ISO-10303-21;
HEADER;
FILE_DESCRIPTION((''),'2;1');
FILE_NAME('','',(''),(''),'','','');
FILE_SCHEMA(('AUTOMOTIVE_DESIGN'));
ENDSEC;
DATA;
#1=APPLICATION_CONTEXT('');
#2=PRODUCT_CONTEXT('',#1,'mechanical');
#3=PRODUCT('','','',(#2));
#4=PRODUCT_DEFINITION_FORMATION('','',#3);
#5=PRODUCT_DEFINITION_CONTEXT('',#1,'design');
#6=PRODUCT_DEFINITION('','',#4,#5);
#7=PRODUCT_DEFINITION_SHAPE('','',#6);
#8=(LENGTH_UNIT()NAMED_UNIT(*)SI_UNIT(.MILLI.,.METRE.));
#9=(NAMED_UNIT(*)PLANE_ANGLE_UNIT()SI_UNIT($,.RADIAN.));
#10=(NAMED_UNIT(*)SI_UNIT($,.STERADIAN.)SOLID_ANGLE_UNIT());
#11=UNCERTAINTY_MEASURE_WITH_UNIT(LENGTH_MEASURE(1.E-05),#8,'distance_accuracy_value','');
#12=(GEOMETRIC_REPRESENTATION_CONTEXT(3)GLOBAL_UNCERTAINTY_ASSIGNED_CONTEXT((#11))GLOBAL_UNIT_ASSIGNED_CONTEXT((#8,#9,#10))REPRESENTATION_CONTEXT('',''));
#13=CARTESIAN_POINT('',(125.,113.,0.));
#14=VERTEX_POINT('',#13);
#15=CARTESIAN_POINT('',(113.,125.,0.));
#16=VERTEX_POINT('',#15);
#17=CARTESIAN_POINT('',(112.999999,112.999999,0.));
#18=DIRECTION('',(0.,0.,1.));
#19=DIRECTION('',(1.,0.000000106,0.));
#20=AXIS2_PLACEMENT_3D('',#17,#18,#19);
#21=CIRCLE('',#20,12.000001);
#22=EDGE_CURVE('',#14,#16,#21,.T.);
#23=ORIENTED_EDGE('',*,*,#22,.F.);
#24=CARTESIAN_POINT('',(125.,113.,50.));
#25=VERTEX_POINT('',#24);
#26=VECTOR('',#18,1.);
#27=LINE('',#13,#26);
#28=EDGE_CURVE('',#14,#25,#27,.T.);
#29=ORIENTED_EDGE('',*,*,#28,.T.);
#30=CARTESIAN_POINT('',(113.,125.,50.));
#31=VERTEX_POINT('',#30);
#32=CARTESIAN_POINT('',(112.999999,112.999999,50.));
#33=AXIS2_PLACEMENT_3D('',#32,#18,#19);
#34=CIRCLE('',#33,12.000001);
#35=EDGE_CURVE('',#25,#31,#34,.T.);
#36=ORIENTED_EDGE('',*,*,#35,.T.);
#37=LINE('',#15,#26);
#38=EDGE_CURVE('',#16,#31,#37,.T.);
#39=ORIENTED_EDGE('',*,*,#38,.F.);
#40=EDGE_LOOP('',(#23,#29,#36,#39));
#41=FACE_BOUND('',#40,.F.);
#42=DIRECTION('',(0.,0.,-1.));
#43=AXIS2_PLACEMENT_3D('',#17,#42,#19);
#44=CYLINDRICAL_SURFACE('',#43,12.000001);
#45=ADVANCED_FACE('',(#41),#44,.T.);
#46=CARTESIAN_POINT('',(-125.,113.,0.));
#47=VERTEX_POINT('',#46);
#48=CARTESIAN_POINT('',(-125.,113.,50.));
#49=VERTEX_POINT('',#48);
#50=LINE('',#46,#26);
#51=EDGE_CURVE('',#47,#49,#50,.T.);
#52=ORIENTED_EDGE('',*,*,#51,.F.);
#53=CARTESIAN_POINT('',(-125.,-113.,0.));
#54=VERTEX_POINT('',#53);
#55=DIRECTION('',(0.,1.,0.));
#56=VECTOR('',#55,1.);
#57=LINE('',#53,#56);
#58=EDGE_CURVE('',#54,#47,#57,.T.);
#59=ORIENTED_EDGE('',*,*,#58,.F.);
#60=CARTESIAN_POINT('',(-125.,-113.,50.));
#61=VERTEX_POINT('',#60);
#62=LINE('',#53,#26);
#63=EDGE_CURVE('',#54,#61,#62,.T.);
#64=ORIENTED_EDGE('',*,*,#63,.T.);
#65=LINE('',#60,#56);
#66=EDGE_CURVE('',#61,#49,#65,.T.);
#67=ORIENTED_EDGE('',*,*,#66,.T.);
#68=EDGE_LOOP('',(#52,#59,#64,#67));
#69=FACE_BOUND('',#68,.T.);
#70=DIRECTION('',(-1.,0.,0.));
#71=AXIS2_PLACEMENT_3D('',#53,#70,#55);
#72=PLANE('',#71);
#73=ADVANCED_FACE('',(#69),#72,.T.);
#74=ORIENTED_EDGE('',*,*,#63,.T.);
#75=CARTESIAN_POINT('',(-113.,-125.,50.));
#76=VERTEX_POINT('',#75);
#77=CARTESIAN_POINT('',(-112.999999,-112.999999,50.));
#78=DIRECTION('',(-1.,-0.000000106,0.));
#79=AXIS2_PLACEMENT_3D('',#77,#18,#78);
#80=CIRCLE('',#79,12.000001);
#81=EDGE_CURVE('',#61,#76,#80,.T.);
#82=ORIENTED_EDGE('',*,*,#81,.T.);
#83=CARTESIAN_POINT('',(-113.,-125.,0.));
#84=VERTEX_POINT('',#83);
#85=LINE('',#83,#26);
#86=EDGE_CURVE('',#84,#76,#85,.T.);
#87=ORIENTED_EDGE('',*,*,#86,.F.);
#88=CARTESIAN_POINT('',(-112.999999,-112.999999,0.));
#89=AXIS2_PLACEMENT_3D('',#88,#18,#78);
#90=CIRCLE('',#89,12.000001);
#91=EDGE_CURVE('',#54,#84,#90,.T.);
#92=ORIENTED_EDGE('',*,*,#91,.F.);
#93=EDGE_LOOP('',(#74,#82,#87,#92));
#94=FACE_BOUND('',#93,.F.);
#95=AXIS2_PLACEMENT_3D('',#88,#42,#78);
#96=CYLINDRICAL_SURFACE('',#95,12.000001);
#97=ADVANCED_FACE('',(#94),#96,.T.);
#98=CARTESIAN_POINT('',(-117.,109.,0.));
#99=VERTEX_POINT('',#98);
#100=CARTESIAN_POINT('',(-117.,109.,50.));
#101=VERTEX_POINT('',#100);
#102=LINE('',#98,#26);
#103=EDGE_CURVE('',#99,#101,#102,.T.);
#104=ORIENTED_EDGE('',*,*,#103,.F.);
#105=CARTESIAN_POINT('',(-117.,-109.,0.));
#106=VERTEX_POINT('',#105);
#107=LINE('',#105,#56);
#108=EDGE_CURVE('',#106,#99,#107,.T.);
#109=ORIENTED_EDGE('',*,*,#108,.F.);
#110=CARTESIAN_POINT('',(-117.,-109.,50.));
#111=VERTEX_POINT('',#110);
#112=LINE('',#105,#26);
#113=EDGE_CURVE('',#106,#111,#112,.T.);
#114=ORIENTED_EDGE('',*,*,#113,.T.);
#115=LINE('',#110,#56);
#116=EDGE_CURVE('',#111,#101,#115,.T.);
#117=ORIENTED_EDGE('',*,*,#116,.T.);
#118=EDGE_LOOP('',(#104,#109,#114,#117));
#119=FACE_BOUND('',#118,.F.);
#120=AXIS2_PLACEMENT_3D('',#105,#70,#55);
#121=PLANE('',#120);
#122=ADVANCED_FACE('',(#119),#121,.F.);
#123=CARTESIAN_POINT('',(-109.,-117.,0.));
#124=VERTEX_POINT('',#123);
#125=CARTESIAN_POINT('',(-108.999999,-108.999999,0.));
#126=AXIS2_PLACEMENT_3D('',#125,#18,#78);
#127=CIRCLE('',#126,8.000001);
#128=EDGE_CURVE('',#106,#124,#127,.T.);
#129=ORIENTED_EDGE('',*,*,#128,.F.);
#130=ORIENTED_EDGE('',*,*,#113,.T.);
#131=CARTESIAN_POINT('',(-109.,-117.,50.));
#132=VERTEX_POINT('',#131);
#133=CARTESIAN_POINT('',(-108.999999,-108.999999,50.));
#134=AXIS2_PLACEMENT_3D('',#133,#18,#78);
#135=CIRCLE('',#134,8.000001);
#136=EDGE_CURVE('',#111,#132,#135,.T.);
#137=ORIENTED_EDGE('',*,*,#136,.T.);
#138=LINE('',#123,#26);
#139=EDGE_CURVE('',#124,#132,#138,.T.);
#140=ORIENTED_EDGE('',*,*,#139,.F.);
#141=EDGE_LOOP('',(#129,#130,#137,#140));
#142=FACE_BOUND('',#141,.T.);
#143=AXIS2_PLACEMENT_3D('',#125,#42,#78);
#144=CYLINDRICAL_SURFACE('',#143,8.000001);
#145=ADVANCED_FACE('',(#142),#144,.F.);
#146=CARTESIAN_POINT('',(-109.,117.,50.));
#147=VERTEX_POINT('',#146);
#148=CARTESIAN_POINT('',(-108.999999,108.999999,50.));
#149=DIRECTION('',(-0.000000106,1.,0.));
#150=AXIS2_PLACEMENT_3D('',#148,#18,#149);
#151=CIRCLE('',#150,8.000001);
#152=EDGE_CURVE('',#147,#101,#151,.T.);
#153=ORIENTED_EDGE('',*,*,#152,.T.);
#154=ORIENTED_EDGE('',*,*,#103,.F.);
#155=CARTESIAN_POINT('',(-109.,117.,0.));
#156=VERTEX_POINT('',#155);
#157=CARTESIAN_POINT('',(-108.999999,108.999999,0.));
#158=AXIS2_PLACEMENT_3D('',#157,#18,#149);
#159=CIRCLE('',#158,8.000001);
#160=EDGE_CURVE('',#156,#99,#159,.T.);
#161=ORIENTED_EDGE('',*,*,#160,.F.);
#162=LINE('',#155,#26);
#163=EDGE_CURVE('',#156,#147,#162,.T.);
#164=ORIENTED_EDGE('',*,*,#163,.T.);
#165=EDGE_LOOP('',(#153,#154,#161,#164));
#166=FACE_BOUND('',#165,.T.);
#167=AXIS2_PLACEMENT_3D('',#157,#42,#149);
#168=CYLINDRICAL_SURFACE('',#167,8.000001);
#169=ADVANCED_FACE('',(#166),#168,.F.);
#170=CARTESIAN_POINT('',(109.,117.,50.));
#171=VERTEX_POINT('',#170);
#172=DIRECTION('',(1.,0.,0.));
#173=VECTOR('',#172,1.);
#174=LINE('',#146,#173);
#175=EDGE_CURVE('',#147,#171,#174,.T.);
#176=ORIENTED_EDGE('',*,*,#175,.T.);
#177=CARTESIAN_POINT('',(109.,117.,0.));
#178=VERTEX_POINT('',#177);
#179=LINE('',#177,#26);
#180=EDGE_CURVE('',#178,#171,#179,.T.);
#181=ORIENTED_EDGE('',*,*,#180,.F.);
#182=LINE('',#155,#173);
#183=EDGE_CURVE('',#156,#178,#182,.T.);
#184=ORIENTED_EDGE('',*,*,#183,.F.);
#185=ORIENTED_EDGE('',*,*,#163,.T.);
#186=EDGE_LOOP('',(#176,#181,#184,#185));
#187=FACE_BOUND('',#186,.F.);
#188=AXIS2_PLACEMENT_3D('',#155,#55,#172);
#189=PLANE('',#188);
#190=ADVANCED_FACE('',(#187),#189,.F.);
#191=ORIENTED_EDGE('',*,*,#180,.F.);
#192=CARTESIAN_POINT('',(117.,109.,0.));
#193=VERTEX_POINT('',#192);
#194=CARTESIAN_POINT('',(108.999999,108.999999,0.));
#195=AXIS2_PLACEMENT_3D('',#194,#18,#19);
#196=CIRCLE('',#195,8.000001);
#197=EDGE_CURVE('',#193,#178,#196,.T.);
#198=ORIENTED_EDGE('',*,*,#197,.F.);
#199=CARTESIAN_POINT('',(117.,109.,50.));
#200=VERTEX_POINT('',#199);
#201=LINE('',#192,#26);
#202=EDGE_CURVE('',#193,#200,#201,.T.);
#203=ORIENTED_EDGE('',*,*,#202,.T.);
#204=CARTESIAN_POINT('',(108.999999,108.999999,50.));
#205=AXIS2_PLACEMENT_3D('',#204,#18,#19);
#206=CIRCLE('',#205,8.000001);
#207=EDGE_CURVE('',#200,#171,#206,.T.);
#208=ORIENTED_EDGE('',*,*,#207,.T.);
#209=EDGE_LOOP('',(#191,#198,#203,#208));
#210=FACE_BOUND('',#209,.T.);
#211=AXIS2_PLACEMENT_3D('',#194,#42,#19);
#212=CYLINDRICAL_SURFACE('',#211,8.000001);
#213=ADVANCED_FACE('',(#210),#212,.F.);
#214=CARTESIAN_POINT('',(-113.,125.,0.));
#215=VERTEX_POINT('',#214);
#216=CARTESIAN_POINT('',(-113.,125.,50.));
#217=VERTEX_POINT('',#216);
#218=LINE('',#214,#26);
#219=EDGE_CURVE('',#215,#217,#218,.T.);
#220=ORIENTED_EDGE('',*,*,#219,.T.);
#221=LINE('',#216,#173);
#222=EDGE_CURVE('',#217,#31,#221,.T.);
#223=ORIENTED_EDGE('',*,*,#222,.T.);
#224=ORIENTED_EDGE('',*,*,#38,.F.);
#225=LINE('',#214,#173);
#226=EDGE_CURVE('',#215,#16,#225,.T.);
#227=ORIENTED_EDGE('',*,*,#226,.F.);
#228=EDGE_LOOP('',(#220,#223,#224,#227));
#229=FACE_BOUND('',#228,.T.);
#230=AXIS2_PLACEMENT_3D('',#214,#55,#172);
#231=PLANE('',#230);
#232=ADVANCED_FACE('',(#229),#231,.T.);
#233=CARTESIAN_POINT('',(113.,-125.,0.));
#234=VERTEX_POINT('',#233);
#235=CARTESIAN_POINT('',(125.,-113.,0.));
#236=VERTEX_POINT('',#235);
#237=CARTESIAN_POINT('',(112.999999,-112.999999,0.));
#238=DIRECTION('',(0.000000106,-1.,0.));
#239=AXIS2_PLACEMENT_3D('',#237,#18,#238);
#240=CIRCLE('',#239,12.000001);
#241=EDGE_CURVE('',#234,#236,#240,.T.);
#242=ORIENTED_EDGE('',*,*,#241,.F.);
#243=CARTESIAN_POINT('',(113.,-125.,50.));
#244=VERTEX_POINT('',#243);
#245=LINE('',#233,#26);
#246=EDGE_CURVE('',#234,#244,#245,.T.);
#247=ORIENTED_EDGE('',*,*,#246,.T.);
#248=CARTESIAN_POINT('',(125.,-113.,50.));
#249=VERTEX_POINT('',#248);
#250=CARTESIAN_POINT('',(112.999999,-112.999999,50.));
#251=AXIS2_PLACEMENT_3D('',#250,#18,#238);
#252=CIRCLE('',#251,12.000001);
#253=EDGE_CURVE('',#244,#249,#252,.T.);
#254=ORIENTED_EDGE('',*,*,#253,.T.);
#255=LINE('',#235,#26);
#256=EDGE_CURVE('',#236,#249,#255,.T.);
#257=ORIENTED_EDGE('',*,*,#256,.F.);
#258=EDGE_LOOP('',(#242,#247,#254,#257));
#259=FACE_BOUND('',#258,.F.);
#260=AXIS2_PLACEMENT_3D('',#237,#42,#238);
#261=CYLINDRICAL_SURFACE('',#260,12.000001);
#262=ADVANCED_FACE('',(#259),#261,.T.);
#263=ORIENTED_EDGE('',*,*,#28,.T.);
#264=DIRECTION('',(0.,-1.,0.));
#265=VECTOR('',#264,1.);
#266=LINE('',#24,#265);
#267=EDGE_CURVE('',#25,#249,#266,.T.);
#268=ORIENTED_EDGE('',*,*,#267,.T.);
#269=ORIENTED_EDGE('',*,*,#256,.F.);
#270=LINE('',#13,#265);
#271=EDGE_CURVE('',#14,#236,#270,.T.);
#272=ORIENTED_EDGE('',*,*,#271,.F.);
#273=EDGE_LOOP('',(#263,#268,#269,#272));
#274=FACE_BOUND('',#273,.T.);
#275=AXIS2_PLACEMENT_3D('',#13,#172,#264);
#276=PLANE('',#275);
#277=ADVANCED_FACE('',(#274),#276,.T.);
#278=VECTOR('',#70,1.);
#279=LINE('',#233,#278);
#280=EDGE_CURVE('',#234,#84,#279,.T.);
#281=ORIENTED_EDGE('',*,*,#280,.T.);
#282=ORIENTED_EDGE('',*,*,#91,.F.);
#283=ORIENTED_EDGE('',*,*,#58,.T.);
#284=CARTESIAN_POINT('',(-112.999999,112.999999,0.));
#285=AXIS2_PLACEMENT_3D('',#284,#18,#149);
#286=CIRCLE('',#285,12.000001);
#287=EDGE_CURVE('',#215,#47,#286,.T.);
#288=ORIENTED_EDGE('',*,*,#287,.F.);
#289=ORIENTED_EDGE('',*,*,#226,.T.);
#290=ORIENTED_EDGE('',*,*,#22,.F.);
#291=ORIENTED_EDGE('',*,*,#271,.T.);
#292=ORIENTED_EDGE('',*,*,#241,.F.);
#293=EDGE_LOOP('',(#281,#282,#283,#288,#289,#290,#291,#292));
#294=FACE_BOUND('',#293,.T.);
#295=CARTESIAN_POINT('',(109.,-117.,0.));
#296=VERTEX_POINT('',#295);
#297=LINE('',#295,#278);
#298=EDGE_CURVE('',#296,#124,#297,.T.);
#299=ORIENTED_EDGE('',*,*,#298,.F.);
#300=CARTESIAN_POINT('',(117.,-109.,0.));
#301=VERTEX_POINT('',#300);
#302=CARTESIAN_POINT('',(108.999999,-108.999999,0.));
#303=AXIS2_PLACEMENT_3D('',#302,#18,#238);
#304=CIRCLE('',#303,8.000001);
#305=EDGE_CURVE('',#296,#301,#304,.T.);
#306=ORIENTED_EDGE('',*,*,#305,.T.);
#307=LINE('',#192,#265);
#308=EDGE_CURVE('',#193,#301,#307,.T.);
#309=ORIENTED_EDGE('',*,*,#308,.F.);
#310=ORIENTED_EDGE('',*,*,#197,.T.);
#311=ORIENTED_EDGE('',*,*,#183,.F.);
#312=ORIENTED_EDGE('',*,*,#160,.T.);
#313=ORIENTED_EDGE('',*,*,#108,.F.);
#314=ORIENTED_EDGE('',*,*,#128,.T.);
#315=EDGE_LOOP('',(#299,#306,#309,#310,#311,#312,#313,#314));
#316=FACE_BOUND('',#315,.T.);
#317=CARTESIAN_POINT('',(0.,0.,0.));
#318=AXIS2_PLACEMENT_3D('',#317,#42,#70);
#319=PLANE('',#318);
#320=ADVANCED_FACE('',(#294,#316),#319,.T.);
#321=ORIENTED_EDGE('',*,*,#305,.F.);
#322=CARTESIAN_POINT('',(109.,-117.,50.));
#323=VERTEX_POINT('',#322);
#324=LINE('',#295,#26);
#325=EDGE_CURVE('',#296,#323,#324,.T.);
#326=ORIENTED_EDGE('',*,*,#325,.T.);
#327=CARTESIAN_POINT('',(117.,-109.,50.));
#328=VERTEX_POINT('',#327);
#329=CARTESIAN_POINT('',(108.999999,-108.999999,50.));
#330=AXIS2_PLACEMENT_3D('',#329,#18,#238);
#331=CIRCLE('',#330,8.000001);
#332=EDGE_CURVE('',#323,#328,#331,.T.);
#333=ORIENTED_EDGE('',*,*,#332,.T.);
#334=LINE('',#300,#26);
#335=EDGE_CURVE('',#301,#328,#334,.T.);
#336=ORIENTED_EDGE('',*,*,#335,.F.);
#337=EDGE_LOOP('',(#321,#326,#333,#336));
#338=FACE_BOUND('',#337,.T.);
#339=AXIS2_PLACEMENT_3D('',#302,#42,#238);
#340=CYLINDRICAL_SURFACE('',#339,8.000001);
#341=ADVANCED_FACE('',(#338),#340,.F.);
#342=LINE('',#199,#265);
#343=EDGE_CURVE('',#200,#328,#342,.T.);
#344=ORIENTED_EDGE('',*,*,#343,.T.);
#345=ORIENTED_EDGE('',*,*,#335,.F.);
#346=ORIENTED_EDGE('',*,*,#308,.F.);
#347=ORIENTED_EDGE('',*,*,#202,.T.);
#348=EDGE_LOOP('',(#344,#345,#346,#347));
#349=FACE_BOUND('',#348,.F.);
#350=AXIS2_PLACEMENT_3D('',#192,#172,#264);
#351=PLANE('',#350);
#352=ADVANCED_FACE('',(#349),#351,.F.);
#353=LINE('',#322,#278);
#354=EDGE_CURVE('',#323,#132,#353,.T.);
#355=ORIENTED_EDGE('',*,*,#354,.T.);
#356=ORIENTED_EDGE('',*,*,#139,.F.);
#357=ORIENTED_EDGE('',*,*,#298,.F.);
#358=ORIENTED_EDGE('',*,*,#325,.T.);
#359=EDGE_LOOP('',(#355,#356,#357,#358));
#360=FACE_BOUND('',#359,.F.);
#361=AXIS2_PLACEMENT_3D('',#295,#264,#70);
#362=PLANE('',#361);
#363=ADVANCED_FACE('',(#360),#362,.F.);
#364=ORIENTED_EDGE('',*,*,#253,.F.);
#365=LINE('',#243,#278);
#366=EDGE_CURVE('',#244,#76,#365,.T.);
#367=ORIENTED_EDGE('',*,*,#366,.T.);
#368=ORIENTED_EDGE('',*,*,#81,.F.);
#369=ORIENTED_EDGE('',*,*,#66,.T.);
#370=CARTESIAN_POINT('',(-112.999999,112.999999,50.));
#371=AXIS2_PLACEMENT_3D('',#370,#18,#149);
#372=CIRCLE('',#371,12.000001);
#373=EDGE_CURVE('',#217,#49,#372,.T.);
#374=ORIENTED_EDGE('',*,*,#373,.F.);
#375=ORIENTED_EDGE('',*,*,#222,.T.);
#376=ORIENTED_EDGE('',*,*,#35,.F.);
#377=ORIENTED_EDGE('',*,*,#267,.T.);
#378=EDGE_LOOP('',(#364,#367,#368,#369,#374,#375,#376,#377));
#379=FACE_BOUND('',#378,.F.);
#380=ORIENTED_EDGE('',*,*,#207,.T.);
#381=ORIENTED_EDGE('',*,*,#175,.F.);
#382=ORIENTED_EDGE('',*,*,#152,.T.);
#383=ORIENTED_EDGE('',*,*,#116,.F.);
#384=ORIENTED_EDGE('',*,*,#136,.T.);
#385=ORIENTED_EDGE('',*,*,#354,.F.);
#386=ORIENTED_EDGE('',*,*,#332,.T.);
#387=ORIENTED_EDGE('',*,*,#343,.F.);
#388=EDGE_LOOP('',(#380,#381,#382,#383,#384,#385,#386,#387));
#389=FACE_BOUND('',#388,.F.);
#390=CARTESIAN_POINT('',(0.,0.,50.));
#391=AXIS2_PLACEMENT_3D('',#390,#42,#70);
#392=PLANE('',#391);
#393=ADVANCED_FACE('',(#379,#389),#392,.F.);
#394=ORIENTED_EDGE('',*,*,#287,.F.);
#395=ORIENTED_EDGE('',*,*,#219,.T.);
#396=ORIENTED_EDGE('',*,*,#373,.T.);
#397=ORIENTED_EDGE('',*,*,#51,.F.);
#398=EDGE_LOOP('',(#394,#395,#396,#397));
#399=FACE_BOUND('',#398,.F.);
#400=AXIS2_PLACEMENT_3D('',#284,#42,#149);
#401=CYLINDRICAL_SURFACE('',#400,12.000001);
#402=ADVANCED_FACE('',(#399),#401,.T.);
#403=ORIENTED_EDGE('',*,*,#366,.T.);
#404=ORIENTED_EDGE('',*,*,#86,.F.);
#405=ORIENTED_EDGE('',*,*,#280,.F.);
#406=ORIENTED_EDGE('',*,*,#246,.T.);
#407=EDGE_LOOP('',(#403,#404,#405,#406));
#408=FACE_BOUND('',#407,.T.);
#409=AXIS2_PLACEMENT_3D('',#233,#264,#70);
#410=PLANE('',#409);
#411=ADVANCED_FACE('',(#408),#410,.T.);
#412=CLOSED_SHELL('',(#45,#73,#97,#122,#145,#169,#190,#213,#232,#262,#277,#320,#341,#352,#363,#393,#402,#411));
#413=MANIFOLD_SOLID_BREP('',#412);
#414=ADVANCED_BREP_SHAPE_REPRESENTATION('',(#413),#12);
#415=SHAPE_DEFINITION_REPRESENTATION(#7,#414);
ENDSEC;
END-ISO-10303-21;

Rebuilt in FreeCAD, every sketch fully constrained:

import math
import FreeCAD as App
import Part
import Sketcher

V = App.Vector
Q = App.Units.Quantity

doc = App.newDocument("Part")
body = doc.addObject("PartDesign::Body", "Body")

# Sketch on XY plane
sketch1 = body.newObject("Sketcher::SketchObject", "Sketch")
sketch1.AttachmentSupport = (doc.getObject("XY_Plane"), [""])
sketch1.MapMode = "FlatFace"
sketch1.addGeometry([
    Part.LineSegment(V(113, 125, 0), V(-113, 125, 0)),  # 0
    Part.ArcOfCircle(Part.Circle(V(-113, 113, 0), V(0, 0, 1), 12), math.radians(90), math.radians(180)),  # 1
    Part.LineSegment(V(-125, 113, 0), V(-125, -113, 0)),  # 2
    Part.ArcOfCircle(Part.Circle(V(-113, -113, 0), V(0, 0, 1), 12), math.radians(-180), math.radians(-90)),  # 3
    Part.LineSegment(V(-113, -125, 0), V(113, -125, 0)),  # 4
    Part.ArcOfCircle(Part.Circle(V(113, -113, 0), V(0, 0, 1), 12), math.radians(-90), math.radians(0)),  # 5
    Part.LineSegment(V(125, -113, 0), V(125, 113, 0)),  # 6
    Part.ArcOfCircle(Part.Circle(V(113, 113, 0), V(0, 0, 1), 12), math.radians(0), math.radians(90)),  # 7
    Part.LineSegment(V(-109, 117, 0), V(109, 117, 0)),  # 8
    Part.ArcOfCircle(Part.Circle(V(109, 109, 0), V(0, 0, 1), 8), math.radians(0), math.radians(90)),  # 9
    Part.LineSegment(V(117, 109, 0), V(117, -109, 0)),  # 10
    Part.ArcOfCircle(Part.Circle(V(109, -109, 0), V(0, 0, 1), 8), math.radians(-90), math.radians(0)),  # 11
    Part.LineSegment(V(109, -117, 0), V(-109, -117, 0)),  # 12
    Part.ArcOfCircle(Part.Circle(V(-109, -109, 0), V(0, 0, 1), 8), math.radians(-180), math.radians(-90)),  # 13
    Part.LineSegment(V(-117, -109, 0), V(-117, 109, 0)),  # 14
    Part.ArcOfCircle(Part.Circle(V(-109, 109, 0), V(0, 0, 1), 8), math.radians(90), math.radians(180)),  # 15
], False)
sketch1.addConstraint([
    Sketcher.Constraint("Tangent", 0, 2, 1, 1),
    Sketcher.Constraint("Tangent", 1, 2, 2, 1),
    Sketcher.Constraint("Tangent", 2, 2, 3, 1),
    Sketcher.Constraint("Tangent", 3, 2, 4, 1),
    Sketcher.Constraint("Tangent", 4, 2, 5, 1),
    Sketcher.Constraint("Tangent", 5, 2, 6, 1),
    Sketcher.Constraint("Tangent", 6, 2, 7, 1),
    Sketcher.Constraint("Tangent", 7, 2, 0, 1),
    Sketcher.Constraint("Tangent", 8, 2, 9, 2),
    Sketcher.Constraint("Tangent", 9, 1, 10, 1),
    Sketcher.Constraint("Tangent", 10, 2, 11, 2),
    Sketcher.Constraint("Tangent", 11, 1, 12, 1),
    Sketcher.Constraint("Tangent", 12, 2, 13, 2),
    Sketcher.Constraint("Tangent", 13, 1, 14, 1),
    Sketcher.Constraint("Tangent", 14, 2, 15, 2),
    Sketcher.Constraint("Tangent", 15, 1, 8, 1),
    Sketcher.Constraint("Horizontal", 0),
    Sketcher.Constraint("Vertical", 2),
    Sketcher.Constraint("Horizontal", 4),
    Sketcher.Constraint("Vertical", 6),
    Sketcher.Constraint("Horizontal", 8),
    Sketcher.Constraint("Vertical", 10),
    Sketcher.Constraint("Horizontal", 12),
    Sketcher.Constraint("Vertical", 14),
    Sketcher.Constraint("Equal", 1, 3),
    Sketcher.Constraint("Equal", 3, 5),
    Sketcher.Constraint("Equal", 5, 7),
    Sketcher.Constraint("Equal", 9, 11),
    Sketcher.Constraint("Equal", 11, 13),
    Sketcher.Constraint("Equal", 13, 15),
    Sketcher.Constraint("Symmetric", 1, 3, 5, 3, -1, 1),
    Sketcher.Constraint("Symmetric", 9, 3, 13, 3, -1, 1),
    Sketcher.Constraint("Equal", 4, 2),
    Sketcher.Constraint("Equal", 12, 10),
    Sketcher.Constraint("Radius", 1, Q("12.000001 mm")),
    Sketcher.Constraint("Radius", 9, Q("8.000001 mm")),
    Sketcher.Constraint("DistanceX", 0, 2, 0, 1, Q("226 mm")),
    Sketcher.Constraint("DistanceX", 8, 1, 8, 2, Q("218 mm")),
])
pad1 = body.newObject("PartDesign::Pad", "Pad")
pad1.Profile = sketch1
pad1.Length = 50

doc.recompute()
